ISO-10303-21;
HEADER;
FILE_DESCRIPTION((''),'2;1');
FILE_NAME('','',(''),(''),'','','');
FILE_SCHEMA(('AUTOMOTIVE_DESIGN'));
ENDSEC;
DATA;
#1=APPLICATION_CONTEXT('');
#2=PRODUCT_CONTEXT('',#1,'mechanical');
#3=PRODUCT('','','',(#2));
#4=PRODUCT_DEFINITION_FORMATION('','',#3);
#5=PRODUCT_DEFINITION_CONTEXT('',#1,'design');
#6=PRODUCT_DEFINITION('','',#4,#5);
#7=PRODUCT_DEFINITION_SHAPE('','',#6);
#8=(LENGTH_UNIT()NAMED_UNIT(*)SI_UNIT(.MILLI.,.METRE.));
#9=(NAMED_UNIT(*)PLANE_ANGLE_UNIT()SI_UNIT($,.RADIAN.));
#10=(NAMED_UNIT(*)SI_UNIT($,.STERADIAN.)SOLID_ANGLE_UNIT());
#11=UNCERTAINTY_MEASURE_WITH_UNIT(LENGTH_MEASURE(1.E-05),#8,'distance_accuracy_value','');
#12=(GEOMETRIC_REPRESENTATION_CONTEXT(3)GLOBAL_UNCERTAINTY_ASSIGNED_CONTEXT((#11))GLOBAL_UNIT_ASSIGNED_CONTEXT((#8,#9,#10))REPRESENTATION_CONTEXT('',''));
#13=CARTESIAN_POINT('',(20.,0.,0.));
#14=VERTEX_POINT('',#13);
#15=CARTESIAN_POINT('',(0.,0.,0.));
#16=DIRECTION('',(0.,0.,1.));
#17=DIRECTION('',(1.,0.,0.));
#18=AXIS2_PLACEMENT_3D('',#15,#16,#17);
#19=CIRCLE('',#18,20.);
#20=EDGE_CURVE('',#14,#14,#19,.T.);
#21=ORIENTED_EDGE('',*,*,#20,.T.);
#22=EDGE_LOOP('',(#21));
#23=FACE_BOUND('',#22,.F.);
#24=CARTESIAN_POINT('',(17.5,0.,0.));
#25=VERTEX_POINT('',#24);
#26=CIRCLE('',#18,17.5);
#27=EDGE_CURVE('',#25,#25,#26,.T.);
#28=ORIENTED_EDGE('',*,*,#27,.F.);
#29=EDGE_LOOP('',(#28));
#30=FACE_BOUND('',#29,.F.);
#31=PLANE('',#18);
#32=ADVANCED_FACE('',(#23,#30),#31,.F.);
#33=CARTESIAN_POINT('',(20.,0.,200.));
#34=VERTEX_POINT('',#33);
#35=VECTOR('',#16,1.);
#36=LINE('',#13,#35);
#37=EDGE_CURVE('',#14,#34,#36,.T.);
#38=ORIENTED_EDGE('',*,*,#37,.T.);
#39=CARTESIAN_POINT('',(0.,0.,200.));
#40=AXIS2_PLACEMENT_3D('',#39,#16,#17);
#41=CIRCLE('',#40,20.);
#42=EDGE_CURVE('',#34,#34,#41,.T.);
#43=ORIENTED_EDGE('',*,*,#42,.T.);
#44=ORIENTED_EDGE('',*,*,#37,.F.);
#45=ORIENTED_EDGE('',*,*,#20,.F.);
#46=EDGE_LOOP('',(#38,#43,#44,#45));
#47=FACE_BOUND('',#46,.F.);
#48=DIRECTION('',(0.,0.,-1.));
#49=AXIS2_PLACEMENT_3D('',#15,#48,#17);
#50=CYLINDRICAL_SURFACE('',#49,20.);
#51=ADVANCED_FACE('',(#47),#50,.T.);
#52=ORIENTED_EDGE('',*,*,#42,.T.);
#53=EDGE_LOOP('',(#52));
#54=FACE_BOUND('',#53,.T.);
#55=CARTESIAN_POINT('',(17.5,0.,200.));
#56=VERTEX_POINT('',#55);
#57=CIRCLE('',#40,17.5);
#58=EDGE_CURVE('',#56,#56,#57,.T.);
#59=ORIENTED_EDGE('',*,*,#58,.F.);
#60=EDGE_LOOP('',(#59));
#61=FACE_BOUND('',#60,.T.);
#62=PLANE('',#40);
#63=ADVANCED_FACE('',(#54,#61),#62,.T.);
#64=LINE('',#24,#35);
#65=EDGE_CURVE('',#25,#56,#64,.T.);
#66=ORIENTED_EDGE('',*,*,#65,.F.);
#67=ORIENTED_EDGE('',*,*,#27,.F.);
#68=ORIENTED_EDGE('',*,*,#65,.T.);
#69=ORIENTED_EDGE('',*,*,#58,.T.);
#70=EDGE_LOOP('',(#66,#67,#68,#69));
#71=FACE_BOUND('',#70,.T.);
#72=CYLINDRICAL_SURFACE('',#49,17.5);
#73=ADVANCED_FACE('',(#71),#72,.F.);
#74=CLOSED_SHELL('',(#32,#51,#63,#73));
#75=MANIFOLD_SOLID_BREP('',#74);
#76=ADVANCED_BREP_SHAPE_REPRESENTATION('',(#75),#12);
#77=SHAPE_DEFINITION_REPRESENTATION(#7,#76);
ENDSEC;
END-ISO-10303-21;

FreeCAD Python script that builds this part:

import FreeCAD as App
import Part
import Sketcher
Q = App.Units.Quantity

doc = App.newDocument("Part")
body = doc.addObject("PartDesign::Body", "Body")

sketch1 = body.newObject("Sketcher::SketchObject", "Sketch")
sketch1.AttachmentSupport = (doc.getObject("XY_Plane"), [""])
sketch1.MapMode = "FlatFace"
sketch1.addGeometry(Part.Circle(App.Vector(0, 0, 0), App.Vector(0, 0, 1), 20), False)
sketch1.addGeometry(Part.Circle(App.Vector(0, 0, 0), App.Vector(0, 0, 1), 18), False)
sketch1.addConstraint(Sketcher.Constraint("Coincident", 0, 3, -1, 1))
sketch1.addConstraint(Sketcher.Constraint("Coincident", 1, 3, -1, 1))
sketch1.addConstraint(Sketcher.Constraint("Diameter", 0, Q("40 mm")))
sketch1.addConstraint(Sketcher.Constraint("Diameter", 1, Q("35 mm")))
pad1 = body.newObject("PartDesign::Pad", "Pad")
pad1.Profile = sketch1
pad1.Length = 200

doc.recompute()
